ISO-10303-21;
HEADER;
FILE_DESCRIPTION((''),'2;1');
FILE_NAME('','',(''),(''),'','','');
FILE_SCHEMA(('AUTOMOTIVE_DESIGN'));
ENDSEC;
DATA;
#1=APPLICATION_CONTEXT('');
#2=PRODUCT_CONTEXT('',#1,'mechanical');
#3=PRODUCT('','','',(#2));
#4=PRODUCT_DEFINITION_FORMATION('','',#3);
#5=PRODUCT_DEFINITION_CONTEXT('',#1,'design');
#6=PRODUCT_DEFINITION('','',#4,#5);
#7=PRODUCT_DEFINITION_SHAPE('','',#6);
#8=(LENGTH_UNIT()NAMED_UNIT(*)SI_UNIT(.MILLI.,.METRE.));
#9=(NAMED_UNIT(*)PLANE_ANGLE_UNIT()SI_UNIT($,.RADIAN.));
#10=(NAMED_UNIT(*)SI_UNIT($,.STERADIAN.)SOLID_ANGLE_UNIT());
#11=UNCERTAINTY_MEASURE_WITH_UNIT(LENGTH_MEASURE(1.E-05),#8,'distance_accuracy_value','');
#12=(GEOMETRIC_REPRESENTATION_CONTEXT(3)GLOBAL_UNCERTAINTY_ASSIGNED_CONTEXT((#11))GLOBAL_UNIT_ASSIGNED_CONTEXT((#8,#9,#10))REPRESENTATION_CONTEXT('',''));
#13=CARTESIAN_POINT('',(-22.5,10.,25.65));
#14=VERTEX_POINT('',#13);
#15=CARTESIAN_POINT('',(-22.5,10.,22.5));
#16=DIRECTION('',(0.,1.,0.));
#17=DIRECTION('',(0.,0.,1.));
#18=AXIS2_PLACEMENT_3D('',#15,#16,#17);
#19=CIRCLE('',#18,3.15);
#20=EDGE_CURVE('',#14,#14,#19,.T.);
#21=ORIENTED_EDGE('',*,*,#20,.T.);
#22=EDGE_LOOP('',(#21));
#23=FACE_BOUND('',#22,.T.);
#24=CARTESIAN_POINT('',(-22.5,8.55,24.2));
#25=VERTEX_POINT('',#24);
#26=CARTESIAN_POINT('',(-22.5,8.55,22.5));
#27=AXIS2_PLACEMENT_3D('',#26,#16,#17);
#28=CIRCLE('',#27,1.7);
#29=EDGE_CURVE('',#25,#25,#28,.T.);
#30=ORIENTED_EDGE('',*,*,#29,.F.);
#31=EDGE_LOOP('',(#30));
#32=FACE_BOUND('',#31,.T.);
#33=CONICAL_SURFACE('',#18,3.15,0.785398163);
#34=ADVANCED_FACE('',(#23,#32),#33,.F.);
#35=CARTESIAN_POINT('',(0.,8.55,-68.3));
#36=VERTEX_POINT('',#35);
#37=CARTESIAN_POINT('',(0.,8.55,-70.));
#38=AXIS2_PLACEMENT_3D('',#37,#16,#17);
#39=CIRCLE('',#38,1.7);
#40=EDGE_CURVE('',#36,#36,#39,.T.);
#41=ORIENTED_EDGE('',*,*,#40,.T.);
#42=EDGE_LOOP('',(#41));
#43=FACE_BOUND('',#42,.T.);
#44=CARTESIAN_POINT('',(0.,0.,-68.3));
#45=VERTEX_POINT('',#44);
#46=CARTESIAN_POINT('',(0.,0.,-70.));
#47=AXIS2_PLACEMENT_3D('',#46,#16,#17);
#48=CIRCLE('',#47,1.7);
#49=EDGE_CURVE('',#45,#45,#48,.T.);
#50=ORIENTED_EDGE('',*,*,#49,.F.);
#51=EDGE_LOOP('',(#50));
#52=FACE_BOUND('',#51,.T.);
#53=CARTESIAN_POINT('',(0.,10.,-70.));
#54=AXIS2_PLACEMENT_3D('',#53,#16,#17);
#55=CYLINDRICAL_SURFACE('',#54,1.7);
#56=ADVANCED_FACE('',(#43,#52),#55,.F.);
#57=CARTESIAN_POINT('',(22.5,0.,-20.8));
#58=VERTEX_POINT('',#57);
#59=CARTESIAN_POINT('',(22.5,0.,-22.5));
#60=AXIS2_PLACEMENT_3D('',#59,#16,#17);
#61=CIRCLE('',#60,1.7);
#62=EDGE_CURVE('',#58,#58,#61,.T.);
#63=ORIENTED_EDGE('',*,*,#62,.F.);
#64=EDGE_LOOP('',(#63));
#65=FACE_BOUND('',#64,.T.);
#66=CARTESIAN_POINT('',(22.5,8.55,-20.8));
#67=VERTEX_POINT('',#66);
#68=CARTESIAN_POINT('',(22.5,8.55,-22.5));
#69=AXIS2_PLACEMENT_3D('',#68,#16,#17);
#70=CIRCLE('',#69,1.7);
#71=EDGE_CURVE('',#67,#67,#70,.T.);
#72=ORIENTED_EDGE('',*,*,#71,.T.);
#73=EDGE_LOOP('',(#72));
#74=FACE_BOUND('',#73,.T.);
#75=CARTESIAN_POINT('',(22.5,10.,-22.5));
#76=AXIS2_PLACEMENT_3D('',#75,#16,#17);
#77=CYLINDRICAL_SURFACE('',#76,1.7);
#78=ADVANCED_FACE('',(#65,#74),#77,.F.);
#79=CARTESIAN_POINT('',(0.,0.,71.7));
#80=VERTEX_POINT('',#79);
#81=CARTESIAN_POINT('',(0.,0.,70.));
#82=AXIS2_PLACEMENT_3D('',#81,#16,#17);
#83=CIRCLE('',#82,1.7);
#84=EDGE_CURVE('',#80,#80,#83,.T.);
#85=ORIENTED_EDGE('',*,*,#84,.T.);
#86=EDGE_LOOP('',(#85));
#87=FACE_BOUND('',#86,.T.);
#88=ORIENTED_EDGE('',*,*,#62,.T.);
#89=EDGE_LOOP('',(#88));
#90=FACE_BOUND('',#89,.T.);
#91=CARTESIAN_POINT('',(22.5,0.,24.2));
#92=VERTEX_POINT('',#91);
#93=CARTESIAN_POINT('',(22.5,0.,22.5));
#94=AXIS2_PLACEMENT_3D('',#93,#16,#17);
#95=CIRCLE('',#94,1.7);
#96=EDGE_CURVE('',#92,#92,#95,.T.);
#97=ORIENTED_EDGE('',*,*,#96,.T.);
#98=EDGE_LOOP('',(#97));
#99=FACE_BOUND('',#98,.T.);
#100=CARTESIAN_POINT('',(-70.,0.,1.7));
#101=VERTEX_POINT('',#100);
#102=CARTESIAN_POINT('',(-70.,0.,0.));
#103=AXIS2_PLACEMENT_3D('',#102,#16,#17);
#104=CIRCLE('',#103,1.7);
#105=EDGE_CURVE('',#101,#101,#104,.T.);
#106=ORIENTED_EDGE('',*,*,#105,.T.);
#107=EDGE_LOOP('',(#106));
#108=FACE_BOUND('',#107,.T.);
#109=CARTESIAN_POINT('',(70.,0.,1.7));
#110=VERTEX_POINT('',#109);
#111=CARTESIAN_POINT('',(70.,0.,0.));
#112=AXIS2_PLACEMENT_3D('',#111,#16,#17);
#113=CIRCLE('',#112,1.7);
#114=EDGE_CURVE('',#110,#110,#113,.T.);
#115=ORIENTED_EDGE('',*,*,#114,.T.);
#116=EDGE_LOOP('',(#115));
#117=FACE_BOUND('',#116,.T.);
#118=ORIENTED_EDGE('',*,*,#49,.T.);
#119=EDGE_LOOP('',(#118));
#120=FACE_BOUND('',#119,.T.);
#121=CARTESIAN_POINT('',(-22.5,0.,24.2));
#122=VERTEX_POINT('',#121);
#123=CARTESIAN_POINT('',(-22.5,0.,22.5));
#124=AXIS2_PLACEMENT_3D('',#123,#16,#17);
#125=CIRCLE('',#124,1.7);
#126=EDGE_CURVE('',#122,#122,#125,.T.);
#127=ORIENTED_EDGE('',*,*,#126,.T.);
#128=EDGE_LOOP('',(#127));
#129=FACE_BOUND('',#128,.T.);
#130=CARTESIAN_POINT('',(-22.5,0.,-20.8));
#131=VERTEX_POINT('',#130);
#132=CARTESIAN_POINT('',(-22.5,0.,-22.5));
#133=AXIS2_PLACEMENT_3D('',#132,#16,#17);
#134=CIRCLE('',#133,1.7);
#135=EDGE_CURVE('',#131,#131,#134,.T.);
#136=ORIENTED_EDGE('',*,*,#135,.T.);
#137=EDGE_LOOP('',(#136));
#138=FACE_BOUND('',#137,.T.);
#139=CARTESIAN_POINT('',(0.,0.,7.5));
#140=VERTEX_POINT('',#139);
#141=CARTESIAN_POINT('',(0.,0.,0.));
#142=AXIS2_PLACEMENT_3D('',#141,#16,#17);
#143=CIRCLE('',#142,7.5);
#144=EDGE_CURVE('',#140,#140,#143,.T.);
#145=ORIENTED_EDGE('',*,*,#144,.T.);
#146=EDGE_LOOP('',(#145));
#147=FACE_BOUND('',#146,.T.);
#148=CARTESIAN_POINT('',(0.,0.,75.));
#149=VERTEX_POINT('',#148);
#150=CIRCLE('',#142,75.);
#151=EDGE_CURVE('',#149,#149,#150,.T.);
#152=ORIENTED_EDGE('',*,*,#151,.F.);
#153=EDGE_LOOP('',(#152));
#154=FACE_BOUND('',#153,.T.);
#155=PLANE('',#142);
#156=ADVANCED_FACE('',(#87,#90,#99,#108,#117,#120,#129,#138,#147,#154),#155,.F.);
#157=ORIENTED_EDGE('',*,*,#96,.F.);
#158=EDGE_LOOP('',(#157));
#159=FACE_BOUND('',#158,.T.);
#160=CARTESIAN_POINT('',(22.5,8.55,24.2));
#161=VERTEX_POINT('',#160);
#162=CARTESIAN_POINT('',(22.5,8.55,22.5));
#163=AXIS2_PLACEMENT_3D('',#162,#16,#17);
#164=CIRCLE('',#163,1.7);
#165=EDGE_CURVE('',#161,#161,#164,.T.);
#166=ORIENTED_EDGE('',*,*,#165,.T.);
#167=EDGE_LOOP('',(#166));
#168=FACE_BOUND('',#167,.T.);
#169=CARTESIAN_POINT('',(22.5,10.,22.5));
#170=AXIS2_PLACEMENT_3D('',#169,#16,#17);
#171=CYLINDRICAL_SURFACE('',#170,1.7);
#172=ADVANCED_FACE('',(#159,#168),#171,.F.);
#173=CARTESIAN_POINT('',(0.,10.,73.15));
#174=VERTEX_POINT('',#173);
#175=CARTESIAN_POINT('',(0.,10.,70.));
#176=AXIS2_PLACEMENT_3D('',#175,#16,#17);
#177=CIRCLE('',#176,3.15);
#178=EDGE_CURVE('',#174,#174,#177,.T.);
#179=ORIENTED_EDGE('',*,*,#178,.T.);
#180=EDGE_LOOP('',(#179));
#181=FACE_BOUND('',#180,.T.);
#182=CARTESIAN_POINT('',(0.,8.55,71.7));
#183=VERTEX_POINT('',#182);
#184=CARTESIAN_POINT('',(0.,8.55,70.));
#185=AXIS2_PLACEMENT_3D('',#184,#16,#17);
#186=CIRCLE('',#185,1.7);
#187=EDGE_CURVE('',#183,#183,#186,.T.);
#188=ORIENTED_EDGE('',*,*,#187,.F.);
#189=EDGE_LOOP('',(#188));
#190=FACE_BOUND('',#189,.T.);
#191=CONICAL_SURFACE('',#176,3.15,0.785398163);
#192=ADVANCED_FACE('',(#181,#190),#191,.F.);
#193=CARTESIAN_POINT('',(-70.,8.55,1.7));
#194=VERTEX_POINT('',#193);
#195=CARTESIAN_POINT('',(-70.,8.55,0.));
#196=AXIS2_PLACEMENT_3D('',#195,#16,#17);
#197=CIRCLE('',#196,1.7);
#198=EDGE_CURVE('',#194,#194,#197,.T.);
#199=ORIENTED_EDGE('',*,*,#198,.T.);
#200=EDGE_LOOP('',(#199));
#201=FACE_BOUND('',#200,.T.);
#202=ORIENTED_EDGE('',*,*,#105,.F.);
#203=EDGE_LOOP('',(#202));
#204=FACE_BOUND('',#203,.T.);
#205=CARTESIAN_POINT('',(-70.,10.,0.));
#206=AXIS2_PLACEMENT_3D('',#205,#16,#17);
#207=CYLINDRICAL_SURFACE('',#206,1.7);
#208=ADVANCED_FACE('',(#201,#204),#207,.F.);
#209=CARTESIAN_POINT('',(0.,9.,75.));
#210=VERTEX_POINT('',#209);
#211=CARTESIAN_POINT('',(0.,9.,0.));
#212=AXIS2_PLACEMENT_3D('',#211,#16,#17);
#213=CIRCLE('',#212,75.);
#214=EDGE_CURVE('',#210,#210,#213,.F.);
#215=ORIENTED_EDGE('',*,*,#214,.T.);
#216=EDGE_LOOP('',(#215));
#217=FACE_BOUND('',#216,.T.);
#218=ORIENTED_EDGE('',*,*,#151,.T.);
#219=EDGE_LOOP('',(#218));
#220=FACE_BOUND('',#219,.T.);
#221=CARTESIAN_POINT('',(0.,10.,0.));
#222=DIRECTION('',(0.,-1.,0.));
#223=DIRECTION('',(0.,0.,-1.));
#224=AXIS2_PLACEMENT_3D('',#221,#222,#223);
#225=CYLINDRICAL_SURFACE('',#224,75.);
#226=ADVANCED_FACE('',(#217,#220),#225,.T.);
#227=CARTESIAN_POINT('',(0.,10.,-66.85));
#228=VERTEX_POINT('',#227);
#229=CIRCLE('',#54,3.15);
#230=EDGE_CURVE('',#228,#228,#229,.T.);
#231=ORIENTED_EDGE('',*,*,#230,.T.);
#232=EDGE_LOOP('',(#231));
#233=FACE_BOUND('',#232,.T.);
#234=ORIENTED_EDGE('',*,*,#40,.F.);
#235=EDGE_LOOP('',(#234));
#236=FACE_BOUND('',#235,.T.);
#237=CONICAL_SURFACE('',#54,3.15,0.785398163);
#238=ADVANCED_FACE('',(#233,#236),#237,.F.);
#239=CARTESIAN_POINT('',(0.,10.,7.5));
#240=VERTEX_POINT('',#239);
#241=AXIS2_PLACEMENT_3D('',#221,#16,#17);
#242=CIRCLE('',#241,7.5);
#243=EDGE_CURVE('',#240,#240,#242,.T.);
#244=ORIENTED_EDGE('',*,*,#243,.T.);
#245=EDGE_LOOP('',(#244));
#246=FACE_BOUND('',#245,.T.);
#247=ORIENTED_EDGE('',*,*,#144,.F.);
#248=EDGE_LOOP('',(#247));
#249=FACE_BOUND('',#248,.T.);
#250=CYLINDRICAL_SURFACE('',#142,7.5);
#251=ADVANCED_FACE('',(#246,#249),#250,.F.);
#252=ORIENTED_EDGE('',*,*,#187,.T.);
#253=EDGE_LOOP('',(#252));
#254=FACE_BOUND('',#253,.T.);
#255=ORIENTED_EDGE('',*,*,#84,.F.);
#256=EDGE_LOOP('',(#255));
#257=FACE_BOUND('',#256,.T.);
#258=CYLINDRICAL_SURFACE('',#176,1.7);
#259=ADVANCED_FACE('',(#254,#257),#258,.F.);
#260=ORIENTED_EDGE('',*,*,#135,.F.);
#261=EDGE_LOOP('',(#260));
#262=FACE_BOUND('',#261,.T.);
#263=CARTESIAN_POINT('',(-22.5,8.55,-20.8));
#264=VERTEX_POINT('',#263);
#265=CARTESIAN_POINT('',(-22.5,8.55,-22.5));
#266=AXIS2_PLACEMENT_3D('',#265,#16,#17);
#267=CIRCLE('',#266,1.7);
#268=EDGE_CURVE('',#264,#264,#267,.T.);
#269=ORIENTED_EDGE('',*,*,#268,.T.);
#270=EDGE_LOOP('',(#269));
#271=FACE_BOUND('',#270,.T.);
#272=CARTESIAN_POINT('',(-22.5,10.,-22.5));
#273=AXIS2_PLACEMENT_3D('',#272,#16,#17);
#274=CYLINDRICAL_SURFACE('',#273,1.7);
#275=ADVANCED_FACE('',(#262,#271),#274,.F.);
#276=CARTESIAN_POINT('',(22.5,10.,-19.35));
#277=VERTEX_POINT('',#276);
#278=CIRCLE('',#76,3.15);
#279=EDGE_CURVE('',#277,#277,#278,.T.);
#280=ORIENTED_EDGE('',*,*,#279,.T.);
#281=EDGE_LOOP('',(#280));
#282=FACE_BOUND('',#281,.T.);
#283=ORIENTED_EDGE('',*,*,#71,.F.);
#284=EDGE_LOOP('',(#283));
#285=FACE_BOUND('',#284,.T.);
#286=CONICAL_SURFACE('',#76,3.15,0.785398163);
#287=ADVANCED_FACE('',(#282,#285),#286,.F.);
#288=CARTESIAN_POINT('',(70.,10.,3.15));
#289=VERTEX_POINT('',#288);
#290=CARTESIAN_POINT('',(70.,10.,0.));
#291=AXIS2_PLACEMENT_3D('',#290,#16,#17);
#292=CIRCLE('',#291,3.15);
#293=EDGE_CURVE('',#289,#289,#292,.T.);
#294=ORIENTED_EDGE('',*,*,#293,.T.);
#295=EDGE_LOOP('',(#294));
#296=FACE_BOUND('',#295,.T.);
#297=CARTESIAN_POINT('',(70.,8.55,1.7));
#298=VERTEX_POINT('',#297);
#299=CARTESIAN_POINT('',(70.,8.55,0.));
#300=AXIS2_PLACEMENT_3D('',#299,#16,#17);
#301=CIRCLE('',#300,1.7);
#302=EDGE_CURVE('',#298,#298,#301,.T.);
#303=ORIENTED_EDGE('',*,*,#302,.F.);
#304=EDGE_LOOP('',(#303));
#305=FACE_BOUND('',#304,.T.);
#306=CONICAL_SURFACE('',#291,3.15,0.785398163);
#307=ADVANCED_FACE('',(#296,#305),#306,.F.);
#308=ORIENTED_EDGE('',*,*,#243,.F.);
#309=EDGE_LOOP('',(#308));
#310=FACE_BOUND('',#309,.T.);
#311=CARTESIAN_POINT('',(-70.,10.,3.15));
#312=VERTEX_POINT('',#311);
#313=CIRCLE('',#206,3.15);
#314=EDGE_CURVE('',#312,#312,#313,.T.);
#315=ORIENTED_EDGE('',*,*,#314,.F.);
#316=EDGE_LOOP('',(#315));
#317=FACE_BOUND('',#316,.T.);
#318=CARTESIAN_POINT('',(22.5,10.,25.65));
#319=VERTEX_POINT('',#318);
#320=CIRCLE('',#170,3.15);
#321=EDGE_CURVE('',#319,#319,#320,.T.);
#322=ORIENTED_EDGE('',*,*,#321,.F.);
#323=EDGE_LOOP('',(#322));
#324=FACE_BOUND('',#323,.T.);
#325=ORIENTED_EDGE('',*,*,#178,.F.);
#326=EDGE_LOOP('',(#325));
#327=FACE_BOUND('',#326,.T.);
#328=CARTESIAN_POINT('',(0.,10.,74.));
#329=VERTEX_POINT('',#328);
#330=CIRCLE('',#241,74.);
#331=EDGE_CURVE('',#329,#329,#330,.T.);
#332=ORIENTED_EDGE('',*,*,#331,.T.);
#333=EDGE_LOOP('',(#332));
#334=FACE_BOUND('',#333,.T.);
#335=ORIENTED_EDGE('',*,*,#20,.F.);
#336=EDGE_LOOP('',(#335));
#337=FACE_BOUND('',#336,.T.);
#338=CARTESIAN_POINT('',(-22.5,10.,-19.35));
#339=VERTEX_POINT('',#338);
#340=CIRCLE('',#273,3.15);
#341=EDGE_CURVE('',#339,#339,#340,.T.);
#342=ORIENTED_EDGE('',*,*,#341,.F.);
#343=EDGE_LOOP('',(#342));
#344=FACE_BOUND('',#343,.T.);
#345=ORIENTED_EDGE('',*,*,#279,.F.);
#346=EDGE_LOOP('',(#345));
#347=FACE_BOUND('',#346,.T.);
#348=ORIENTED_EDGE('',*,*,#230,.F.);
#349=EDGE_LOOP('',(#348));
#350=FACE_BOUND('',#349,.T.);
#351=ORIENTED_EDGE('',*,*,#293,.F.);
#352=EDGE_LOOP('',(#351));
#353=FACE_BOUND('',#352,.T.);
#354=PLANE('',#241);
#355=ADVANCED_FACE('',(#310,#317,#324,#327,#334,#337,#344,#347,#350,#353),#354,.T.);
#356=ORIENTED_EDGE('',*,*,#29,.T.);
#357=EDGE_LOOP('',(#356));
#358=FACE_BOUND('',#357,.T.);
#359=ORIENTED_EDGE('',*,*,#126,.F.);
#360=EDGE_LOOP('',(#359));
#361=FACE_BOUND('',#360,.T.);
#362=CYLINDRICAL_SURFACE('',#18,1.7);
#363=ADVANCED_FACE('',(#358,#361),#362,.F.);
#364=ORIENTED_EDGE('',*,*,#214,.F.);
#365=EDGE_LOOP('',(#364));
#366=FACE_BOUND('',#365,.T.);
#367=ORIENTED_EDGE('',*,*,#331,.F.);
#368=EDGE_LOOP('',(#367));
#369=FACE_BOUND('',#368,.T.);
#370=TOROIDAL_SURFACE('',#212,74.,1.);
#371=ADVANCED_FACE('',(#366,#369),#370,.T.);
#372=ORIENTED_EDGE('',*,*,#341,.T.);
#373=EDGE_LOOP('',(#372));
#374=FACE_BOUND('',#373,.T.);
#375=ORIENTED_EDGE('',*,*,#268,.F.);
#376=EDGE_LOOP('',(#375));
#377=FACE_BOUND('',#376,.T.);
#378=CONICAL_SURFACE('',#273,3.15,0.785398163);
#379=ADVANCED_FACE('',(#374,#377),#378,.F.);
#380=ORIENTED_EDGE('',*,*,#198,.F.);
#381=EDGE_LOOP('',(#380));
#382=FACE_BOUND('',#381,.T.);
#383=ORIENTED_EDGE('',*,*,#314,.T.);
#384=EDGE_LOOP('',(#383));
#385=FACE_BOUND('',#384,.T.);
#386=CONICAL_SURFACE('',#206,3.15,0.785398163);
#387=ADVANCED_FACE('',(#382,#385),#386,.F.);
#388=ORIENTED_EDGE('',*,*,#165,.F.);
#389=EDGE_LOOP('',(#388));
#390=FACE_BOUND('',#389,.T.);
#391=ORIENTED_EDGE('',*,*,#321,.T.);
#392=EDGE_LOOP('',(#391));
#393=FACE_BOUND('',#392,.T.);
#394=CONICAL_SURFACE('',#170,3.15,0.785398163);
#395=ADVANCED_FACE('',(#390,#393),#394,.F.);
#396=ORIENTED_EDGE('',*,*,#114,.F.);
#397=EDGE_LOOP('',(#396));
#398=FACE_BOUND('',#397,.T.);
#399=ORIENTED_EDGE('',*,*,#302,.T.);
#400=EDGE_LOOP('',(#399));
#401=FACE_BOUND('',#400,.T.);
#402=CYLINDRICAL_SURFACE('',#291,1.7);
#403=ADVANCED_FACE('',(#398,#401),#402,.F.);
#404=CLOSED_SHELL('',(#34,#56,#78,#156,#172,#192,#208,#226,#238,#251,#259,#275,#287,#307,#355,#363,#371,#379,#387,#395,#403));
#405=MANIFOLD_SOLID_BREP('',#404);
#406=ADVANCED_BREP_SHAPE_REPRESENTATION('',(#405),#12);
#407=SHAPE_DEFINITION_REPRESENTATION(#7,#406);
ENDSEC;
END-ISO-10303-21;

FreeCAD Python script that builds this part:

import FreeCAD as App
import Part
import Sketcher


def edges_at(feature, points):
    """Names of the edges that pass closest to the given points."""
    edges = feature.Shape.Edges
    near = lambda p: min(range(len(edges)), key=lambda i: edges[i].distToShape(Part.Vertex(*p))[0])
    return sorted({f"Edge{near(p) + 1}" for p in points})

doc = App.newDocument("Part")
params = doc.addObject("Spreadsheet::Sheet", "Params")
for row, (alias, value) in enumerate([
    ("sketch1_diameter", "150 mm"),
    ("pad1_length", "10 mm"),
    ("sketch2_diameter", "3.4 mm"),
    ("hole_diameter", "3.4 mm"),
    ("hole_csink_diameter", "6.3 mm"),
    ("sketch3_diameter", "15 mm"),
    ("sketch4_diameter", "3.4 mm"),
    ("hole2_diameter", "3.4 mm"),
    ("hole2_csink_diameter", "6.3 mm"),
    ("fillet_radius", "1 mm"),
], start=1):
    params.set(f"A{row}", alias)
    params.set(f"B{row}", "=" + value)
    params.setAlias(f"B{row}", alias)

body = doc.addObject("PartDesign::Body", "Body")

sketch1 = doc.addObject("Sketcher::SketchObject", "Sketch")
body.addObject(sketch1)
sketch1.AttachmentSupport = (doc.XZ_Plane, [""])
sketch1.MapMode = "FlatFace"
sketch1.addGeometry(Part.Circle(App.Vector(0, 0, 0), App.Vector(0, 0, 1), 75), False)
sketch1.addConstraint([
    Sketcher.Constraint("Coincident", 0, 3, -1, 1),
    Sketcher.Constraint("Diameter", 0, 150.0),
])
sketch1.setExpression("Constraints[1]", "Params.sketch1_diameter")
pad1 = doc.addObject("PartDesign::Pad", "Pad")
body.addObject(pad1)
pad1.Profile = sketch1
pad1.setExpression("Length", "Params.pad1_length")
pad1.Reversed = True

sketch2 = doc.addObject("Sketcher::SketchObject", "Sketch001")
body.addObject(sketch2)
sketch2.AttachmentSupport = (doc.XZ_Plane, [""])
sketch2.MapMode = "FlatFace"
sketch2.AttachmentOffset = App.Placement(App.Vector(0, 0, -10), App.Rotation())
sketch2.addGeometry(Part.Circle(App.Vector(0, -70, 0), App.Vector(0, 0, 1), 1.7), False)
sketch2.addConstraint([
    Sketcher.Constraint("PointOnObject", 0, 3, -2),
    Sketcher.Constraint("Diameter", 0, 3.4),
    Sketcher.Constraint("DistanceY", 0, 3, -1, 1, 70.0),
])
sketch2.setExpression("Constraints[1]", "Params.sketch2_diameter")
doc.recompute()
hole = doc.addObject("PartDesign::Hole", "Hole")
body.addObject(hole)
hole.Profile = sketch2
hole.ThreadType = "None"
hole.setExpression("Diameter", "Params.hole_diameter")
hole.DepthType = "ThroughAll"
hole.HoleCutType = "Countersink"
hole.setExpression("HoleCutDiameter", "Params.hole_csink_diameter")
hole.HoleCutCountersinkAngle = 90
hole.Reversed = True
doc.recompute()

polarpattern = doc.addObject("PartDesign::PolarPattern", "PolarPattern")
body.addObject(polarpattern)
polarpattern.Originals = [hole]
polarpattern.Axis = (doc.Y_Axis, [""])
polarpattern.Angle = 360
polarpattern.Occurrences = 4
body.Tip = polarpattern

sketch3 = doc.addObject("Sketcher::SketchObject", "Sketch002")
body.addObject(sketch3)
sketch3.AttachmentSupport = (doc.XZ_Plane, [""])
sketch3.MapMode = "FlatFace"
sketch3.AttachmentOffset = App.Placement(App.Vector(0, 0, -10), App.Rotation())
sketch3.addGeometry(Part.Circle(App.Vector(0, 0, 0), App.Vector(0, 0, 1), 8), False)
sketch3.addConstraint([
    Sketcher.Constraint("Coincident", 0, 3, -1, 1),
    Sketcher.Constraint("Diameter", 0, 15.0),
])
sketch3.setExpression("Constraints[1]", "Params.sketch3_diameter")
pocket1 = doc.addObject("PartDesign::Pocket", "Pocket")
body.addObject(pocket1)
pocket1.Profile = sketch3
pocket1.Type = "ThroughAll"
pocket1.Reversed = True

sketch4 = doc.addObject("Sketcher::SketchObject", "Sketch003")
body.addObject(sketch4)
sketch4.AttachmentSupport = (doc.XZ_Plane, [""])
sketch4.MapMode = "FlatFace"
sketch4.AttachmentOffset = App.Placement(App.Vector(0, 0, -10), App.Rotation())
sketch4.addGeometry([
    Part.Circle(App.Vector(22.5, -22.5, 0), App.Vector(0, 0, 1), 1.7),
    Part.Circle(App.Vector(22.5, 22.5, 0), App.Vector(0, 0, 1), 1.7),
    Part.Circle(App.Vector(-22.5, 22.5, 0), App.Vector(0, 0, 1), 1.7),
    Part.Circle(App.Vector(-22.5, -22.5, 0), App.Vector(0, 0, 1), 1.7),
], False)
sketch4.addConstraint([
    Sketcher.Constraint("Equal", 0, 1),
    Sketcher.Constraint("Equal", 1, 2),
    Sketcher.Constraint("Equal", 2, 3),
    Sketcher.Constraint("Symmetric", 0, 3, 2, 3, -1, 1),
    Sketcher.Constraint("Symmetric", 1, 3, 3, 3, -1, 1),
    Sketcher.Constraint("Symmetric", 1, 3, 2, 3, -2),
    Sketcher.Constraint("Diameter", 0, 3.4),
    Sketcher.Constraint("DistanceY", 0, 3, 1, 3, 45.0),
    Sketcher.Constraint("DistanceX", 2, 3, 1, 3, 45.0),
])
sketch4.setExpression("Constraints[6]", "Params.sketch4_diameter")
doc.recompute()
hole2 = doc.addObject("PartDesign::Hole", "Hole001")
body.addObject(hole2)
hole2.Profile = sketch4
hole2.ThreadType = "None"
hole2.setExpression("Diameter", "Params.hole2_diameter")
hole2.DepthType = "ThroughAll"
hole2.HoleCutType = "Countersink"
hole2.setExpression("HoleCutDiameter", "Params.hole2_csink_diameter")
hole2.HoleCutCountersinkAngle = 90
hole2.Reversed = True
doc.recompute()

fillet = doc.addObject("PartDesign::Fillet", "Fillet")
body.addObject(fillet)
fillet.Base = (hole2, edges_at(hole2, [(0, 10, -75)]))
fillet.setExpression("Radius", "Params.fillet_radius")

doc.recompute()
